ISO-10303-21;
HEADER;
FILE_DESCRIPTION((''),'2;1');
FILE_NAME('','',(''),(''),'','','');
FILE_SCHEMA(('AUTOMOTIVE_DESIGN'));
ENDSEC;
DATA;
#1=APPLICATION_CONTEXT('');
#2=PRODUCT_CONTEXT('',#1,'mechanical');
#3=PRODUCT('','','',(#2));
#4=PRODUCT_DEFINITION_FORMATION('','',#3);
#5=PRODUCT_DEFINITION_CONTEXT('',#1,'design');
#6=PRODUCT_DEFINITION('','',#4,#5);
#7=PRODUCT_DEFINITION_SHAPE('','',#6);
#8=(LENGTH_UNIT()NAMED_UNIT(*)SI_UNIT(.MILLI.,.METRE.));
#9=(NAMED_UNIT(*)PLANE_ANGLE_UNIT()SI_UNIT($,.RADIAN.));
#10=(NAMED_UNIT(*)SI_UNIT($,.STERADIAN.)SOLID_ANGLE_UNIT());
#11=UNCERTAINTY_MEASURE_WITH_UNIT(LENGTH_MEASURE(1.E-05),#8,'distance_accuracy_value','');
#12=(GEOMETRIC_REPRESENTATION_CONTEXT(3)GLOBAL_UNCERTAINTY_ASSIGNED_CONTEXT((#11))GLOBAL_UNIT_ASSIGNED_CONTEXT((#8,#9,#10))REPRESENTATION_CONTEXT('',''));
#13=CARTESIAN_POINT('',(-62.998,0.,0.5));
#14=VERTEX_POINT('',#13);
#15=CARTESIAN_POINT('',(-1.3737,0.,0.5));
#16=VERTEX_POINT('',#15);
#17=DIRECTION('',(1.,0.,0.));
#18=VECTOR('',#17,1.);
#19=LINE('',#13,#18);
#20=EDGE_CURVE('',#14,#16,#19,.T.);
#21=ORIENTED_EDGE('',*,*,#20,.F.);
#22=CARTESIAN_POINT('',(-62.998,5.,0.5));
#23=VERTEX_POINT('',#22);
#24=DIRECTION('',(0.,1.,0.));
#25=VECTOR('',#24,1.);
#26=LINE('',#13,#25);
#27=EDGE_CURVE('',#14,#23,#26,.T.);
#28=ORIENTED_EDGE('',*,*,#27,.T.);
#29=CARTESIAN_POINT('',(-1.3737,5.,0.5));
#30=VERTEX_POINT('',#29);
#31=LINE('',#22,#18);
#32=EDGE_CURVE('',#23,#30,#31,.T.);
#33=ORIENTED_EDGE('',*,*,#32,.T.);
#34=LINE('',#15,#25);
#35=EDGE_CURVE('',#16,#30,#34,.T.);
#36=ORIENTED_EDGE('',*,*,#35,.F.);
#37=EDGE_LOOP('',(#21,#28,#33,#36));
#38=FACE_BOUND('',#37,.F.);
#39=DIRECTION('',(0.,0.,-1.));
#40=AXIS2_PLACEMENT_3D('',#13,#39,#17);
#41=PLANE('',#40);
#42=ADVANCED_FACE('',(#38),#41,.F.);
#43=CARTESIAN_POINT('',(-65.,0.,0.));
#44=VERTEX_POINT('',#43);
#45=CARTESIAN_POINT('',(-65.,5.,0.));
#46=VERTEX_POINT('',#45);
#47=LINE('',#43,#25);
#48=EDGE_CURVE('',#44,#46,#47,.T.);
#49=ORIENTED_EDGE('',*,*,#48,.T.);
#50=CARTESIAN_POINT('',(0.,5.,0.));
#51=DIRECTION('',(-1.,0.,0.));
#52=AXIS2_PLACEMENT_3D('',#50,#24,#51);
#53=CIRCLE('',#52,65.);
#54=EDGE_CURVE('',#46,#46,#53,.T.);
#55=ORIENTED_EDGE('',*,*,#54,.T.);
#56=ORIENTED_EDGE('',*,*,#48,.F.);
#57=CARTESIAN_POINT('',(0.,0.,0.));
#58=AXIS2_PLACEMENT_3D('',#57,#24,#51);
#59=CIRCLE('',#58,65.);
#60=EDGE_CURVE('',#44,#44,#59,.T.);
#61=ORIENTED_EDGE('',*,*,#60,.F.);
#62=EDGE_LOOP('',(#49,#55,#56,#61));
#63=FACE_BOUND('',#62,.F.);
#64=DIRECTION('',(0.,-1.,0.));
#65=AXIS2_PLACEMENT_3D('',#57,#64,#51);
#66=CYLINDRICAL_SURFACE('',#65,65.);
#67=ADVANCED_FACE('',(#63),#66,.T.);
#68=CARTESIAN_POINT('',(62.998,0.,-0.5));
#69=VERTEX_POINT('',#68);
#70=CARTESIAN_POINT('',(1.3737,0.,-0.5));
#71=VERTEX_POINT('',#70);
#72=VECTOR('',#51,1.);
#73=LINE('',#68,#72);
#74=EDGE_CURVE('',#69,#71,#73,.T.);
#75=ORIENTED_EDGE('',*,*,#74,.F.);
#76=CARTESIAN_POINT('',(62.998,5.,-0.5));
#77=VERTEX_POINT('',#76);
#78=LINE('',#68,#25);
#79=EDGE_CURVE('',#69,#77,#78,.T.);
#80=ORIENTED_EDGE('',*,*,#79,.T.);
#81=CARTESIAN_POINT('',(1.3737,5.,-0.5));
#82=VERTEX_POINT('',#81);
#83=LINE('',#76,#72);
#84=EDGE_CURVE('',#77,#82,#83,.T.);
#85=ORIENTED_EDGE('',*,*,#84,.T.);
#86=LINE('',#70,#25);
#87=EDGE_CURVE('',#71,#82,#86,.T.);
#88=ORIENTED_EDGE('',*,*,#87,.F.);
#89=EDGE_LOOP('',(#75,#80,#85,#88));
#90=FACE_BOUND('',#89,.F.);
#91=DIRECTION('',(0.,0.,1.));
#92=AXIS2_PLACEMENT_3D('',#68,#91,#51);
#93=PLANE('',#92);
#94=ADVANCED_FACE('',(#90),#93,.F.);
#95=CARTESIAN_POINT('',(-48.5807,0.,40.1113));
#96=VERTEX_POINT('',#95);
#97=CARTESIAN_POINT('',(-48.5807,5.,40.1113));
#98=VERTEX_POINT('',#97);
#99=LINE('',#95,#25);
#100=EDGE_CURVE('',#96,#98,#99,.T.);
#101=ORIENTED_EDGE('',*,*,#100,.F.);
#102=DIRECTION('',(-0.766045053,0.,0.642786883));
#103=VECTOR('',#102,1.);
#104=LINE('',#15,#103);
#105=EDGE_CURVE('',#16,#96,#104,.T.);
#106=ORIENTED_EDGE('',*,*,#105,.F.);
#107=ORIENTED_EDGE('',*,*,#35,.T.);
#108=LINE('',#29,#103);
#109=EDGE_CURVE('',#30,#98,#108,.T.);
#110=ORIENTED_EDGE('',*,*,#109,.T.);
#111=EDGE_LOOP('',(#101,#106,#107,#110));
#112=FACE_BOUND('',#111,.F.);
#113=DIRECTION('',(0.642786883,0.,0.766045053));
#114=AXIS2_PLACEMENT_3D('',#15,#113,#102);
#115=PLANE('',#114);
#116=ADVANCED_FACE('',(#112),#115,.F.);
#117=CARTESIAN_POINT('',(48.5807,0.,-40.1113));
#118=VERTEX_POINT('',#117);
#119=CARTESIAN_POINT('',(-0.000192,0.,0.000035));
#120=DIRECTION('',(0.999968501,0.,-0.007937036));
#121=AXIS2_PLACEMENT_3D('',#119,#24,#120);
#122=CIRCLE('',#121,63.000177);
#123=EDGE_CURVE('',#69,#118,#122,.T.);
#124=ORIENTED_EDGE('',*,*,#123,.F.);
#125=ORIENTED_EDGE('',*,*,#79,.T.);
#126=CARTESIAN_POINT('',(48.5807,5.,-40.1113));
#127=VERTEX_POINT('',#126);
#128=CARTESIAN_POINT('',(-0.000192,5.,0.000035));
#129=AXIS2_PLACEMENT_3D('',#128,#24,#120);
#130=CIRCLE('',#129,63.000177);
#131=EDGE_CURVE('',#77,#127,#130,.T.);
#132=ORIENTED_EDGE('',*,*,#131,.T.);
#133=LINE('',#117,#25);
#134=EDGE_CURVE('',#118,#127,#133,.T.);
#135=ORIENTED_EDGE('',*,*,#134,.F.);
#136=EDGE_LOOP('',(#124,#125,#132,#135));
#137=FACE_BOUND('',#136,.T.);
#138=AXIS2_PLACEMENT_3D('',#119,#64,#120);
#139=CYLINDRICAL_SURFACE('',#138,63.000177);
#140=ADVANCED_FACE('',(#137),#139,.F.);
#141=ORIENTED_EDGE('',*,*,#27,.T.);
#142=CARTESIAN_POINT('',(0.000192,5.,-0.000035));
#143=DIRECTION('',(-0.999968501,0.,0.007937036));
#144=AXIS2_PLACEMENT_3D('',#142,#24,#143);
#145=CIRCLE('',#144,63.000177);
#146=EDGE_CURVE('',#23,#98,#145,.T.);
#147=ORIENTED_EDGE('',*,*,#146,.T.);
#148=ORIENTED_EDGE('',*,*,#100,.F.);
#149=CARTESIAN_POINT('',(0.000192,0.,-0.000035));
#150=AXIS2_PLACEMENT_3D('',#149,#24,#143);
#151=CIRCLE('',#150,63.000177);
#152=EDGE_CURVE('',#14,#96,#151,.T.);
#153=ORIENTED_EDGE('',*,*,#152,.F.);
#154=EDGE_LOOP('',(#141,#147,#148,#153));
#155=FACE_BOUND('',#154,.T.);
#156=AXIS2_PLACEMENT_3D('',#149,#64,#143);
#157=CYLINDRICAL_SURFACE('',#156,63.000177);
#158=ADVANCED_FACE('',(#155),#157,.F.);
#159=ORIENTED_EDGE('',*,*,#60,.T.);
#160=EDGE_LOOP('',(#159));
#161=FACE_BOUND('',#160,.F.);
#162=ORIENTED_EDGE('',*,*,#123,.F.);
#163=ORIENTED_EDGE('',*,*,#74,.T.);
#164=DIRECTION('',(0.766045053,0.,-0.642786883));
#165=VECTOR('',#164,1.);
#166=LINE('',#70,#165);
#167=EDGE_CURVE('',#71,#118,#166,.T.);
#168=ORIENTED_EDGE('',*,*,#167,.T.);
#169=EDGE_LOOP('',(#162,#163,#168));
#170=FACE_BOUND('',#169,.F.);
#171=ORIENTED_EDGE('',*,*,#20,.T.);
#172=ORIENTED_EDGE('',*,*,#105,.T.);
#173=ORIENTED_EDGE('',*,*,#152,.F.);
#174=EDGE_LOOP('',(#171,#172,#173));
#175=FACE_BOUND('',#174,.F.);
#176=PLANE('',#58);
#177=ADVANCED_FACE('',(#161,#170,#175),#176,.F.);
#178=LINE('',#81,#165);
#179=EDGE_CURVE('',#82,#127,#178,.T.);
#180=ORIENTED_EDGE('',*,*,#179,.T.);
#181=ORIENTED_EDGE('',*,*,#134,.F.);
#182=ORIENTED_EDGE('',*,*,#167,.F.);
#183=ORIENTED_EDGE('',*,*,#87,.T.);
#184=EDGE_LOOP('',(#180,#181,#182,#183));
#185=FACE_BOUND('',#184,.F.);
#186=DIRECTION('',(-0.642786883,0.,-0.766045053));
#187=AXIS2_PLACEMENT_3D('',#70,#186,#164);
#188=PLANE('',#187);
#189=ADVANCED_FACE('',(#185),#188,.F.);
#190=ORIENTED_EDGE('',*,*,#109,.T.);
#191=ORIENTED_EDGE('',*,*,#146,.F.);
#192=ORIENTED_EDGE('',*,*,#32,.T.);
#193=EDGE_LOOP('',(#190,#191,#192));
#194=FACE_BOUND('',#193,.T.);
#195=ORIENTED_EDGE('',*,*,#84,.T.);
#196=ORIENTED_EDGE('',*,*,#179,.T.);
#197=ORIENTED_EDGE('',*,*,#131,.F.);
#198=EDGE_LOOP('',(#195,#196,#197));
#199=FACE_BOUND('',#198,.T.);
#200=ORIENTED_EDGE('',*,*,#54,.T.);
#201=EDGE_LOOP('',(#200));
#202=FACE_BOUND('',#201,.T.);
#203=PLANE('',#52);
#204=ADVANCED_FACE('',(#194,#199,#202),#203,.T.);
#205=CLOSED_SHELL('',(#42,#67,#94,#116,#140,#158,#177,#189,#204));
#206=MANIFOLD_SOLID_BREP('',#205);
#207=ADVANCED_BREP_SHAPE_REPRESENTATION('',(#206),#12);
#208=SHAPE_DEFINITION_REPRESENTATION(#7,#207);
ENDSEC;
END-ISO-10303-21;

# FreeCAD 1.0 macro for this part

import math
import FreeCAD as App
import Part
import Sketcher
from FreeCAD import Vector
Q = App.Units.Quantity

doc = App.newDocument("Part")
body = doc.addObject("PartDesign::Body", "Body")

# Sketch on XZ plane
sketch1 = doc.addObject("Sketcher::SketchObject", "Sketch")
body.addObject(sketch1)
sketch1.AttachmentSupport = (doc.XZ_Plane, [""])
sketch1.MapMode = "FlatFace"
sketch1.addGeometry(Part.Circle(Vector(0, 0, 0), Vector(0, 0, 1), 65), False)
sketch1.addGeometry(Part.ArcOfCircle(Part.Circle(Vector(0, 0, 0), Vector(0, 0, 1), 63), math.radians(-40), math.radians(0)), False)
sketch1.addGeometry(Part.LineSegment(Vector(63, 0, 0), Vector(1, 0, 0)), False)
sketch1.addGeometry(Part.LineSegment(Vector(1, 0, 0), Vector(49, -40, 0)), False)
sketch1.addGeometry(Part.ArcOfCircle(Part.Circle(Vector(0, 0, 0), Vector(0, 0, 1), 63), math.radians(140), math.radians(180)), False)
sketch1.addGeometry(Part.LineSegment(Vector(-63, 0, 0), Vector(-1, 0, 0)), False)
sketch1.addGeometry(Part.LineSegment(Vector(-1, 0, 0), Vector(-49, 40, 0)), False)
sketch1.addConstraint(Sketcher.Constraint("Coincident", 1, 2, 2, 1))
sketch1.addConstraint(Sketcher.Constraint("Coincident", 2, 2, 3, 1))
sketch1.addConstraint(Sketcher.Constraint("Coincident", 3, 2, 1, 1))
sketch1.addConstraint(Sketcher.Constraint("Coincident", 4, 2, 5, 1))
sketch1.addConstraint(Sketcher.Constraint("Coincident", 5, 2, 6, 1))
sketch1.addConstraint(Sketcher.Constraint("Coincident", 6, 2, 4, 1))
sketch1.addConstraint(Sketcher.Constraint("Horizontal", 2))
sketch1.addConstraint(Sketcher.Constraint("Horizontal", 5))
sketch1.addConstraint(Sketcher.Constraint("Coincident", 0, 3, -1, 1))
sketch1.addConstraint(Sketcher.Constraint("Coincident", 1, 3, -1, 1))
sketch1.addConstraint(Sketcher.Constraint("Coincident", 4, 3, -1, 1))
sketch1.addConstraint(Sketcher.Constraint("Equal", 1, 4))
sketch1.addConstraint(Sketcher.Constraint("Symmetric", 2, 2, 5, 2, -1, 1))
sketch1.addConstraint(Sketcher.Constraint("Parallel", 3, 6))
sketch1.addConstraint(Sketcher.Constraint("Diameter", 0, 130.0))
sketch1.addConstraint(Sketcher.Constraint("Radius", 1, 63.0))
sketch1.addConstraint(Sketcher.Constraint("Angle", 3, Q("-40 deg")))
sketch1.addConstraint(Sketcher.Constraint("DistanceY", 2, 2, 4, 2, 1.0))
sketch1.addConstraint(Sketcher.Constraint("DistanceX", 2, 2, 2, 1, 61.6243))
pad1 = doc.addObject("PartDesign::Pad", "Pad")
body.addObject(pad1)
pad1.Profile = sketch1
pad1.Length = 5
pad1.Reversed = True

doc.recompute()
